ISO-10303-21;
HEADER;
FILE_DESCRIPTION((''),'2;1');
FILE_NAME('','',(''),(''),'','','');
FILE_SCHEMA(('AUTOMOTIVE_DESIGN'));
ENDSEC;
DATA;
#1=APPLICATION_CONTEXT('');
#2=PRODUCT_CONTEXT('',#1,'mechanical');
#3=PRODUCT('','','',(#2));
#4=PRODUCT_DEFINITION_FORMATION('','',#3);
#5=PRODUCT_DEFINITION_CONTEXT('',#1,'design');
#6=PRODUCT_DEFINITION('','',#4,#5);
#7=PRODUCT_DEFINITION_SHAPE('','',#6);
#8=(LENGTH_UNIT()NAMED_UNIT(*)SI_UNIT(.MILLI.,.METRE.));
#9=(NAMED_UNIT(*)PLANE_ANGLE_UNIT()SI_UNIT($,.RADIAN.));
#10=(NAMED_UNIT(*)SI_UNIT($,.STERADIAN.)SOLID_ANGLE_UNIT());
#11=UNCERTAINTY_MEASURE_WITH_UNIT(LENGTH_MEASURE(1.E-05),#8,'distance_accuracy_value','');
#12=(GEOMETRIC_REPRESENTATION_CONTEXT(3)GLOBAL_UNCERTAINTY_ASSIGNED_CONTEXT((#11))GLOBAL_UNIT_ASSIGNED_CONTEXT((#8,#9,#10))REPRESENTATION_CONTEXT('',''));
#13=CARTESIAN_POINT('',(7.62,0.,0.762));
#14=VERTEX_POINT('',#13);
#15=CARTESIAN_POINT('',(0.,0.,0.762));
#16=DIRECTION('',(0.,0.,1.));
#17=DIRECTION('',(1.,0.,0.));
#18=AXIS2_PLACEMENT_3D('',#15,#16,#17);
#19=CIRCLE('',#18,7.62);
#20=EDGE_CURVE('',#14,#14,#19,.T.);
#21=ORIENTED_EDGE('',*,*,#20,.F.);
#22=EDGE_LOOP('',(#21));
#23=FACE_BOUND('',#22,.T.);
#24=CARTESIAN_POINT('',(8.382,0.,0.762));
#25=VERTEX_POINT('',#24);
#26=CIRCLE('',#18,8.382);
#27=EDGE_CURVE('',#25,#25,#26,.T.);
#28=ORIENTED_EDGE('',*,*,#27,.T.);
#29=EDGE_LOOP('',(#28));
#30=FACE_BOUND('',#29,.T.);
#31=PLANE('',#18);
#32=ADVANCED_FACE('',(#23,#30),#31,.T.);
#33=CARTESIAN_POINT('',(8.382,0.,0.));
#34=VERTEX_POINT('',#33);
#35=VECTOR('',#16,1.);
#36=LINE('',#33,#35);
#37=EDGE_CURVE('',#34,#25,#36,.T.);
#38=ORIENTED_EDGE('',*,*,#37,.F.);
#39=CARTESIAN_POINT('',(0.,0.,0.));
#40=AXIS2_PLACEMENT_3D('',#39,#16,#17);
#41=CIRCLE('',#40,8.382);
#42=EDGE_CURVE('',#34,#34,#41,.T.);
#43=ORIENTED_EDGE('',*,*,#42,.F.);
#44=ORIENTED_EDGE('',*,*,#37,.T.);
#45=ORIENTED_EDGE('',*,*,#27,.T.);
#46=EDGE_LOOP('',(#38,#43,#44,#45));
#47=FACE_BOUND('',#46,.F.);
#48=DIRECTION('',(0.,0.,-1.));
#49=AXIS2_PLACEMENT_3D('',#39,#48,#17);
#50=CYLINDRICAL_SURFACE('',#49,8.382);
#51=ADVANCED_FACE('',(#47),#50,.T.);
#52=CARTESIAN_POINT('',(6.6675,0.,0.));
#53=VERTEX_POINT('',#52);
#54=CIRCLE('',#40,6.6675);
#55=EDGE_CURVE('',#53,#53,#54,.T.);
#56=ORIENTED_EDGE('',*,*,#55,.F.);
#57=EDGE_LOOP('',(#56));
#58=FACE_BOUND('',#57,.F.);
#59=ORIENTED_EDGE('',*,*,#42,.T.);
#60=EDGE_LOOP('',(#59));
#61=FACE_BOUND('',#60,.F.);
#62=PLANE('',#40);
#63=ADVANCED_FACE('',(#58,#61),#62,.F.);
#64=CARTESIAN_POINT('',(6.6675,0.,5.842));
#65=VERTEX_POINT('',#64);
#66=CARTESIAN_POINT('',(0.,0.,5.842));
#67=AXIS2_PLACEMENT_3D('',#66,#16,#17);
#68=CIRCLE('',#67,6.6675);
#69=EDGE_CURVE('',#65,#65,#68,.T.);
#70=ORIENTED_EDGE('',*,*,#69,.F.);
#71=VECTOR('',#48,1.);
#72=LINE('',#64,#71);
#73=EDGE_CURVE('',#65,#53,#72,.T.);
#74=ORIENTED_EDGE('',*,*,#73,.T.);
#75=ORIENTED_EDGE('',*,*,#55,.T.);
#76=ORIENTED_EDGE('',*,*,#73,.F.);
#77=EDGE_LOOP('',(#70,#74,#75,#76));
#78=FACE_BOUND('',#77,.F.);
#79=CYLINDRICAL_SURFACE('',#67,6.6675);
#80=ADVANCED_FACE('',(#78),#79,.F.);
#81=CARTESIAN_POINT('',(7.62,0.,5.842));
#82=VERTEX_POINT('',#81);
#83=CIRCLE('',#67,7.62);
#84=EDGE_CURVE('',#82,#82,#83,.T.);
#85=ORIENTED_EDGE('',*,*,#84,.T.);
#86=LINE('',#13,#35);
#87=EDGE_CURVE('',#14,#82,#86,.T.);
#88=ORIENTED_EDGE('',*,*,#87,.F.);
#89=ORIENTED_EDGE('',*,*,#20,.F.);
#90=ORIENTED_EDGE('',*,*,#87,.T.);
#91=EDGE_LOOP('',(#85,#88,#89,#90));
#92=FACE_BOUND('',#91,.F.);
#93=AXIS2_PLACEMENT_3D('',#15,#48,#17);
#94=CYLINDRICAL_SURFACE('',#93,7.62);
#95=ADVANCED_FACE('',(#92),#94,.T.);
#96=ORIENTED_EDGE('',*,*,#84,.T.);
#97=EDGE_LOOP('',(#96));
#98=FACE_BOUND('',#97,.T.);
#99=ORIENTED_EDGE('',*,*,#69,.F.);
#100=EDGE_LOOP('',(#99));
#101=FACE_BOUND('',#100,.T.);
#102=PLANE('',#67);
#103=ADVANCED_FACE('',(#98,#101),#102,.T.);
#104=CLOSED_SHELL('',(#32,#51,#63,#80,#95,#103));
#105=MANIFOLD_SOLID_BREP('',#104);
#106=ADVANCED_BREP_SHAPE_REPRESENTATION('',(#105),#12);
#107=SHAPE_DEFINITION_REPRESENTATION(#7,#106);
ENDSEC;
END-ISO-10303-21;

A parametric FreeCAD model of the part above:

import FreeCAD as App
import Part
import Sketcher

V = App.Vector
Q = App.Units.Quantity

doc = App.newDocument("Part")
body = doc.addObject("PartDesign::Body", "Body")

# Sketch on XY plane
sketch1 = body.newObject("Sketcher::SketchObject", "Sketch")
sketch1.AttachmentSupport = (doc.getObject("XY_Plane"), [""])
sketch1.MapMode = "FlatFace"
sketch1.addGeometry(Part.Circle(V(0, 0, 0), V(0, 0, 1), 8), False)
sketch1.addConstraint(Sketcher.Constraint("Coincident", 0, 3, -1, 1))
sketch1.addConstraint(Sketcher.Constraint("Diameter", 0, Q("0.66 in")))
pad1 = body.newObject("PartDesign::Pad", "Pad")
pad1.Profile = sketch1
pad1.Length = Q("0.03 in")

# Sketch on XY plane
sketch2 = body.newObject("Sketcher::SketchObject", "Sketch001")
sketch2.AttachmentSupport = (doc.getObject("XY_Plane"), [""])
sketch2.MapMode = "FlatFace"
sketch2.AttachmentOffset = App.Placement(V(0, 0, 0.03 * 25.4), App.Rotation())
sketch2.addGeometry(Part.Circle(V(0, 0, 0), V(0, 0, 1), 8), False)
sketch2.addConstraint(Sketcher.Constraint("Coincident", 0, 3, -1, 1))
sketch2.addConstraint(Sketcher.Constraint("Diameter", 0, Q("0.6 in")))
pad2 = body.newObject("PartDesign::Pad", "Pad001")
pad2.Profile = sketch2
pad2.Length = Q("0.2 in")

# Sketch on XY plane
sketch3 = body.newObject("Sketcher::SketchObject", "Sketch002")
sketch3.AttachmentSupport = (doc.getObject("XY_Plane"), [""])
sketch3.MapMode = "FlatFace"
sketch3.AttachmentOffset = App.Placement(V(0, 0, 0.23 * 25.4), App.Rotation())
sketch3.addGeometry(Part.Circle(V(0, 0, 0), V(0, 0, 1), 7), False)
sketch3.addConstraint(Sketcher.Constraint("Coincident", 0, 3, -1, 1))
sketch3.addConstraint(Sketcher.Constraint("Diameter", 0, Q("0.525 in")))
pocket1 = body.newObject("PartDesign::Pocket", "Pocket")
pocket1.Profile = sketch3
pocket1.Type = "ThroughAll"

doc.recompute()
